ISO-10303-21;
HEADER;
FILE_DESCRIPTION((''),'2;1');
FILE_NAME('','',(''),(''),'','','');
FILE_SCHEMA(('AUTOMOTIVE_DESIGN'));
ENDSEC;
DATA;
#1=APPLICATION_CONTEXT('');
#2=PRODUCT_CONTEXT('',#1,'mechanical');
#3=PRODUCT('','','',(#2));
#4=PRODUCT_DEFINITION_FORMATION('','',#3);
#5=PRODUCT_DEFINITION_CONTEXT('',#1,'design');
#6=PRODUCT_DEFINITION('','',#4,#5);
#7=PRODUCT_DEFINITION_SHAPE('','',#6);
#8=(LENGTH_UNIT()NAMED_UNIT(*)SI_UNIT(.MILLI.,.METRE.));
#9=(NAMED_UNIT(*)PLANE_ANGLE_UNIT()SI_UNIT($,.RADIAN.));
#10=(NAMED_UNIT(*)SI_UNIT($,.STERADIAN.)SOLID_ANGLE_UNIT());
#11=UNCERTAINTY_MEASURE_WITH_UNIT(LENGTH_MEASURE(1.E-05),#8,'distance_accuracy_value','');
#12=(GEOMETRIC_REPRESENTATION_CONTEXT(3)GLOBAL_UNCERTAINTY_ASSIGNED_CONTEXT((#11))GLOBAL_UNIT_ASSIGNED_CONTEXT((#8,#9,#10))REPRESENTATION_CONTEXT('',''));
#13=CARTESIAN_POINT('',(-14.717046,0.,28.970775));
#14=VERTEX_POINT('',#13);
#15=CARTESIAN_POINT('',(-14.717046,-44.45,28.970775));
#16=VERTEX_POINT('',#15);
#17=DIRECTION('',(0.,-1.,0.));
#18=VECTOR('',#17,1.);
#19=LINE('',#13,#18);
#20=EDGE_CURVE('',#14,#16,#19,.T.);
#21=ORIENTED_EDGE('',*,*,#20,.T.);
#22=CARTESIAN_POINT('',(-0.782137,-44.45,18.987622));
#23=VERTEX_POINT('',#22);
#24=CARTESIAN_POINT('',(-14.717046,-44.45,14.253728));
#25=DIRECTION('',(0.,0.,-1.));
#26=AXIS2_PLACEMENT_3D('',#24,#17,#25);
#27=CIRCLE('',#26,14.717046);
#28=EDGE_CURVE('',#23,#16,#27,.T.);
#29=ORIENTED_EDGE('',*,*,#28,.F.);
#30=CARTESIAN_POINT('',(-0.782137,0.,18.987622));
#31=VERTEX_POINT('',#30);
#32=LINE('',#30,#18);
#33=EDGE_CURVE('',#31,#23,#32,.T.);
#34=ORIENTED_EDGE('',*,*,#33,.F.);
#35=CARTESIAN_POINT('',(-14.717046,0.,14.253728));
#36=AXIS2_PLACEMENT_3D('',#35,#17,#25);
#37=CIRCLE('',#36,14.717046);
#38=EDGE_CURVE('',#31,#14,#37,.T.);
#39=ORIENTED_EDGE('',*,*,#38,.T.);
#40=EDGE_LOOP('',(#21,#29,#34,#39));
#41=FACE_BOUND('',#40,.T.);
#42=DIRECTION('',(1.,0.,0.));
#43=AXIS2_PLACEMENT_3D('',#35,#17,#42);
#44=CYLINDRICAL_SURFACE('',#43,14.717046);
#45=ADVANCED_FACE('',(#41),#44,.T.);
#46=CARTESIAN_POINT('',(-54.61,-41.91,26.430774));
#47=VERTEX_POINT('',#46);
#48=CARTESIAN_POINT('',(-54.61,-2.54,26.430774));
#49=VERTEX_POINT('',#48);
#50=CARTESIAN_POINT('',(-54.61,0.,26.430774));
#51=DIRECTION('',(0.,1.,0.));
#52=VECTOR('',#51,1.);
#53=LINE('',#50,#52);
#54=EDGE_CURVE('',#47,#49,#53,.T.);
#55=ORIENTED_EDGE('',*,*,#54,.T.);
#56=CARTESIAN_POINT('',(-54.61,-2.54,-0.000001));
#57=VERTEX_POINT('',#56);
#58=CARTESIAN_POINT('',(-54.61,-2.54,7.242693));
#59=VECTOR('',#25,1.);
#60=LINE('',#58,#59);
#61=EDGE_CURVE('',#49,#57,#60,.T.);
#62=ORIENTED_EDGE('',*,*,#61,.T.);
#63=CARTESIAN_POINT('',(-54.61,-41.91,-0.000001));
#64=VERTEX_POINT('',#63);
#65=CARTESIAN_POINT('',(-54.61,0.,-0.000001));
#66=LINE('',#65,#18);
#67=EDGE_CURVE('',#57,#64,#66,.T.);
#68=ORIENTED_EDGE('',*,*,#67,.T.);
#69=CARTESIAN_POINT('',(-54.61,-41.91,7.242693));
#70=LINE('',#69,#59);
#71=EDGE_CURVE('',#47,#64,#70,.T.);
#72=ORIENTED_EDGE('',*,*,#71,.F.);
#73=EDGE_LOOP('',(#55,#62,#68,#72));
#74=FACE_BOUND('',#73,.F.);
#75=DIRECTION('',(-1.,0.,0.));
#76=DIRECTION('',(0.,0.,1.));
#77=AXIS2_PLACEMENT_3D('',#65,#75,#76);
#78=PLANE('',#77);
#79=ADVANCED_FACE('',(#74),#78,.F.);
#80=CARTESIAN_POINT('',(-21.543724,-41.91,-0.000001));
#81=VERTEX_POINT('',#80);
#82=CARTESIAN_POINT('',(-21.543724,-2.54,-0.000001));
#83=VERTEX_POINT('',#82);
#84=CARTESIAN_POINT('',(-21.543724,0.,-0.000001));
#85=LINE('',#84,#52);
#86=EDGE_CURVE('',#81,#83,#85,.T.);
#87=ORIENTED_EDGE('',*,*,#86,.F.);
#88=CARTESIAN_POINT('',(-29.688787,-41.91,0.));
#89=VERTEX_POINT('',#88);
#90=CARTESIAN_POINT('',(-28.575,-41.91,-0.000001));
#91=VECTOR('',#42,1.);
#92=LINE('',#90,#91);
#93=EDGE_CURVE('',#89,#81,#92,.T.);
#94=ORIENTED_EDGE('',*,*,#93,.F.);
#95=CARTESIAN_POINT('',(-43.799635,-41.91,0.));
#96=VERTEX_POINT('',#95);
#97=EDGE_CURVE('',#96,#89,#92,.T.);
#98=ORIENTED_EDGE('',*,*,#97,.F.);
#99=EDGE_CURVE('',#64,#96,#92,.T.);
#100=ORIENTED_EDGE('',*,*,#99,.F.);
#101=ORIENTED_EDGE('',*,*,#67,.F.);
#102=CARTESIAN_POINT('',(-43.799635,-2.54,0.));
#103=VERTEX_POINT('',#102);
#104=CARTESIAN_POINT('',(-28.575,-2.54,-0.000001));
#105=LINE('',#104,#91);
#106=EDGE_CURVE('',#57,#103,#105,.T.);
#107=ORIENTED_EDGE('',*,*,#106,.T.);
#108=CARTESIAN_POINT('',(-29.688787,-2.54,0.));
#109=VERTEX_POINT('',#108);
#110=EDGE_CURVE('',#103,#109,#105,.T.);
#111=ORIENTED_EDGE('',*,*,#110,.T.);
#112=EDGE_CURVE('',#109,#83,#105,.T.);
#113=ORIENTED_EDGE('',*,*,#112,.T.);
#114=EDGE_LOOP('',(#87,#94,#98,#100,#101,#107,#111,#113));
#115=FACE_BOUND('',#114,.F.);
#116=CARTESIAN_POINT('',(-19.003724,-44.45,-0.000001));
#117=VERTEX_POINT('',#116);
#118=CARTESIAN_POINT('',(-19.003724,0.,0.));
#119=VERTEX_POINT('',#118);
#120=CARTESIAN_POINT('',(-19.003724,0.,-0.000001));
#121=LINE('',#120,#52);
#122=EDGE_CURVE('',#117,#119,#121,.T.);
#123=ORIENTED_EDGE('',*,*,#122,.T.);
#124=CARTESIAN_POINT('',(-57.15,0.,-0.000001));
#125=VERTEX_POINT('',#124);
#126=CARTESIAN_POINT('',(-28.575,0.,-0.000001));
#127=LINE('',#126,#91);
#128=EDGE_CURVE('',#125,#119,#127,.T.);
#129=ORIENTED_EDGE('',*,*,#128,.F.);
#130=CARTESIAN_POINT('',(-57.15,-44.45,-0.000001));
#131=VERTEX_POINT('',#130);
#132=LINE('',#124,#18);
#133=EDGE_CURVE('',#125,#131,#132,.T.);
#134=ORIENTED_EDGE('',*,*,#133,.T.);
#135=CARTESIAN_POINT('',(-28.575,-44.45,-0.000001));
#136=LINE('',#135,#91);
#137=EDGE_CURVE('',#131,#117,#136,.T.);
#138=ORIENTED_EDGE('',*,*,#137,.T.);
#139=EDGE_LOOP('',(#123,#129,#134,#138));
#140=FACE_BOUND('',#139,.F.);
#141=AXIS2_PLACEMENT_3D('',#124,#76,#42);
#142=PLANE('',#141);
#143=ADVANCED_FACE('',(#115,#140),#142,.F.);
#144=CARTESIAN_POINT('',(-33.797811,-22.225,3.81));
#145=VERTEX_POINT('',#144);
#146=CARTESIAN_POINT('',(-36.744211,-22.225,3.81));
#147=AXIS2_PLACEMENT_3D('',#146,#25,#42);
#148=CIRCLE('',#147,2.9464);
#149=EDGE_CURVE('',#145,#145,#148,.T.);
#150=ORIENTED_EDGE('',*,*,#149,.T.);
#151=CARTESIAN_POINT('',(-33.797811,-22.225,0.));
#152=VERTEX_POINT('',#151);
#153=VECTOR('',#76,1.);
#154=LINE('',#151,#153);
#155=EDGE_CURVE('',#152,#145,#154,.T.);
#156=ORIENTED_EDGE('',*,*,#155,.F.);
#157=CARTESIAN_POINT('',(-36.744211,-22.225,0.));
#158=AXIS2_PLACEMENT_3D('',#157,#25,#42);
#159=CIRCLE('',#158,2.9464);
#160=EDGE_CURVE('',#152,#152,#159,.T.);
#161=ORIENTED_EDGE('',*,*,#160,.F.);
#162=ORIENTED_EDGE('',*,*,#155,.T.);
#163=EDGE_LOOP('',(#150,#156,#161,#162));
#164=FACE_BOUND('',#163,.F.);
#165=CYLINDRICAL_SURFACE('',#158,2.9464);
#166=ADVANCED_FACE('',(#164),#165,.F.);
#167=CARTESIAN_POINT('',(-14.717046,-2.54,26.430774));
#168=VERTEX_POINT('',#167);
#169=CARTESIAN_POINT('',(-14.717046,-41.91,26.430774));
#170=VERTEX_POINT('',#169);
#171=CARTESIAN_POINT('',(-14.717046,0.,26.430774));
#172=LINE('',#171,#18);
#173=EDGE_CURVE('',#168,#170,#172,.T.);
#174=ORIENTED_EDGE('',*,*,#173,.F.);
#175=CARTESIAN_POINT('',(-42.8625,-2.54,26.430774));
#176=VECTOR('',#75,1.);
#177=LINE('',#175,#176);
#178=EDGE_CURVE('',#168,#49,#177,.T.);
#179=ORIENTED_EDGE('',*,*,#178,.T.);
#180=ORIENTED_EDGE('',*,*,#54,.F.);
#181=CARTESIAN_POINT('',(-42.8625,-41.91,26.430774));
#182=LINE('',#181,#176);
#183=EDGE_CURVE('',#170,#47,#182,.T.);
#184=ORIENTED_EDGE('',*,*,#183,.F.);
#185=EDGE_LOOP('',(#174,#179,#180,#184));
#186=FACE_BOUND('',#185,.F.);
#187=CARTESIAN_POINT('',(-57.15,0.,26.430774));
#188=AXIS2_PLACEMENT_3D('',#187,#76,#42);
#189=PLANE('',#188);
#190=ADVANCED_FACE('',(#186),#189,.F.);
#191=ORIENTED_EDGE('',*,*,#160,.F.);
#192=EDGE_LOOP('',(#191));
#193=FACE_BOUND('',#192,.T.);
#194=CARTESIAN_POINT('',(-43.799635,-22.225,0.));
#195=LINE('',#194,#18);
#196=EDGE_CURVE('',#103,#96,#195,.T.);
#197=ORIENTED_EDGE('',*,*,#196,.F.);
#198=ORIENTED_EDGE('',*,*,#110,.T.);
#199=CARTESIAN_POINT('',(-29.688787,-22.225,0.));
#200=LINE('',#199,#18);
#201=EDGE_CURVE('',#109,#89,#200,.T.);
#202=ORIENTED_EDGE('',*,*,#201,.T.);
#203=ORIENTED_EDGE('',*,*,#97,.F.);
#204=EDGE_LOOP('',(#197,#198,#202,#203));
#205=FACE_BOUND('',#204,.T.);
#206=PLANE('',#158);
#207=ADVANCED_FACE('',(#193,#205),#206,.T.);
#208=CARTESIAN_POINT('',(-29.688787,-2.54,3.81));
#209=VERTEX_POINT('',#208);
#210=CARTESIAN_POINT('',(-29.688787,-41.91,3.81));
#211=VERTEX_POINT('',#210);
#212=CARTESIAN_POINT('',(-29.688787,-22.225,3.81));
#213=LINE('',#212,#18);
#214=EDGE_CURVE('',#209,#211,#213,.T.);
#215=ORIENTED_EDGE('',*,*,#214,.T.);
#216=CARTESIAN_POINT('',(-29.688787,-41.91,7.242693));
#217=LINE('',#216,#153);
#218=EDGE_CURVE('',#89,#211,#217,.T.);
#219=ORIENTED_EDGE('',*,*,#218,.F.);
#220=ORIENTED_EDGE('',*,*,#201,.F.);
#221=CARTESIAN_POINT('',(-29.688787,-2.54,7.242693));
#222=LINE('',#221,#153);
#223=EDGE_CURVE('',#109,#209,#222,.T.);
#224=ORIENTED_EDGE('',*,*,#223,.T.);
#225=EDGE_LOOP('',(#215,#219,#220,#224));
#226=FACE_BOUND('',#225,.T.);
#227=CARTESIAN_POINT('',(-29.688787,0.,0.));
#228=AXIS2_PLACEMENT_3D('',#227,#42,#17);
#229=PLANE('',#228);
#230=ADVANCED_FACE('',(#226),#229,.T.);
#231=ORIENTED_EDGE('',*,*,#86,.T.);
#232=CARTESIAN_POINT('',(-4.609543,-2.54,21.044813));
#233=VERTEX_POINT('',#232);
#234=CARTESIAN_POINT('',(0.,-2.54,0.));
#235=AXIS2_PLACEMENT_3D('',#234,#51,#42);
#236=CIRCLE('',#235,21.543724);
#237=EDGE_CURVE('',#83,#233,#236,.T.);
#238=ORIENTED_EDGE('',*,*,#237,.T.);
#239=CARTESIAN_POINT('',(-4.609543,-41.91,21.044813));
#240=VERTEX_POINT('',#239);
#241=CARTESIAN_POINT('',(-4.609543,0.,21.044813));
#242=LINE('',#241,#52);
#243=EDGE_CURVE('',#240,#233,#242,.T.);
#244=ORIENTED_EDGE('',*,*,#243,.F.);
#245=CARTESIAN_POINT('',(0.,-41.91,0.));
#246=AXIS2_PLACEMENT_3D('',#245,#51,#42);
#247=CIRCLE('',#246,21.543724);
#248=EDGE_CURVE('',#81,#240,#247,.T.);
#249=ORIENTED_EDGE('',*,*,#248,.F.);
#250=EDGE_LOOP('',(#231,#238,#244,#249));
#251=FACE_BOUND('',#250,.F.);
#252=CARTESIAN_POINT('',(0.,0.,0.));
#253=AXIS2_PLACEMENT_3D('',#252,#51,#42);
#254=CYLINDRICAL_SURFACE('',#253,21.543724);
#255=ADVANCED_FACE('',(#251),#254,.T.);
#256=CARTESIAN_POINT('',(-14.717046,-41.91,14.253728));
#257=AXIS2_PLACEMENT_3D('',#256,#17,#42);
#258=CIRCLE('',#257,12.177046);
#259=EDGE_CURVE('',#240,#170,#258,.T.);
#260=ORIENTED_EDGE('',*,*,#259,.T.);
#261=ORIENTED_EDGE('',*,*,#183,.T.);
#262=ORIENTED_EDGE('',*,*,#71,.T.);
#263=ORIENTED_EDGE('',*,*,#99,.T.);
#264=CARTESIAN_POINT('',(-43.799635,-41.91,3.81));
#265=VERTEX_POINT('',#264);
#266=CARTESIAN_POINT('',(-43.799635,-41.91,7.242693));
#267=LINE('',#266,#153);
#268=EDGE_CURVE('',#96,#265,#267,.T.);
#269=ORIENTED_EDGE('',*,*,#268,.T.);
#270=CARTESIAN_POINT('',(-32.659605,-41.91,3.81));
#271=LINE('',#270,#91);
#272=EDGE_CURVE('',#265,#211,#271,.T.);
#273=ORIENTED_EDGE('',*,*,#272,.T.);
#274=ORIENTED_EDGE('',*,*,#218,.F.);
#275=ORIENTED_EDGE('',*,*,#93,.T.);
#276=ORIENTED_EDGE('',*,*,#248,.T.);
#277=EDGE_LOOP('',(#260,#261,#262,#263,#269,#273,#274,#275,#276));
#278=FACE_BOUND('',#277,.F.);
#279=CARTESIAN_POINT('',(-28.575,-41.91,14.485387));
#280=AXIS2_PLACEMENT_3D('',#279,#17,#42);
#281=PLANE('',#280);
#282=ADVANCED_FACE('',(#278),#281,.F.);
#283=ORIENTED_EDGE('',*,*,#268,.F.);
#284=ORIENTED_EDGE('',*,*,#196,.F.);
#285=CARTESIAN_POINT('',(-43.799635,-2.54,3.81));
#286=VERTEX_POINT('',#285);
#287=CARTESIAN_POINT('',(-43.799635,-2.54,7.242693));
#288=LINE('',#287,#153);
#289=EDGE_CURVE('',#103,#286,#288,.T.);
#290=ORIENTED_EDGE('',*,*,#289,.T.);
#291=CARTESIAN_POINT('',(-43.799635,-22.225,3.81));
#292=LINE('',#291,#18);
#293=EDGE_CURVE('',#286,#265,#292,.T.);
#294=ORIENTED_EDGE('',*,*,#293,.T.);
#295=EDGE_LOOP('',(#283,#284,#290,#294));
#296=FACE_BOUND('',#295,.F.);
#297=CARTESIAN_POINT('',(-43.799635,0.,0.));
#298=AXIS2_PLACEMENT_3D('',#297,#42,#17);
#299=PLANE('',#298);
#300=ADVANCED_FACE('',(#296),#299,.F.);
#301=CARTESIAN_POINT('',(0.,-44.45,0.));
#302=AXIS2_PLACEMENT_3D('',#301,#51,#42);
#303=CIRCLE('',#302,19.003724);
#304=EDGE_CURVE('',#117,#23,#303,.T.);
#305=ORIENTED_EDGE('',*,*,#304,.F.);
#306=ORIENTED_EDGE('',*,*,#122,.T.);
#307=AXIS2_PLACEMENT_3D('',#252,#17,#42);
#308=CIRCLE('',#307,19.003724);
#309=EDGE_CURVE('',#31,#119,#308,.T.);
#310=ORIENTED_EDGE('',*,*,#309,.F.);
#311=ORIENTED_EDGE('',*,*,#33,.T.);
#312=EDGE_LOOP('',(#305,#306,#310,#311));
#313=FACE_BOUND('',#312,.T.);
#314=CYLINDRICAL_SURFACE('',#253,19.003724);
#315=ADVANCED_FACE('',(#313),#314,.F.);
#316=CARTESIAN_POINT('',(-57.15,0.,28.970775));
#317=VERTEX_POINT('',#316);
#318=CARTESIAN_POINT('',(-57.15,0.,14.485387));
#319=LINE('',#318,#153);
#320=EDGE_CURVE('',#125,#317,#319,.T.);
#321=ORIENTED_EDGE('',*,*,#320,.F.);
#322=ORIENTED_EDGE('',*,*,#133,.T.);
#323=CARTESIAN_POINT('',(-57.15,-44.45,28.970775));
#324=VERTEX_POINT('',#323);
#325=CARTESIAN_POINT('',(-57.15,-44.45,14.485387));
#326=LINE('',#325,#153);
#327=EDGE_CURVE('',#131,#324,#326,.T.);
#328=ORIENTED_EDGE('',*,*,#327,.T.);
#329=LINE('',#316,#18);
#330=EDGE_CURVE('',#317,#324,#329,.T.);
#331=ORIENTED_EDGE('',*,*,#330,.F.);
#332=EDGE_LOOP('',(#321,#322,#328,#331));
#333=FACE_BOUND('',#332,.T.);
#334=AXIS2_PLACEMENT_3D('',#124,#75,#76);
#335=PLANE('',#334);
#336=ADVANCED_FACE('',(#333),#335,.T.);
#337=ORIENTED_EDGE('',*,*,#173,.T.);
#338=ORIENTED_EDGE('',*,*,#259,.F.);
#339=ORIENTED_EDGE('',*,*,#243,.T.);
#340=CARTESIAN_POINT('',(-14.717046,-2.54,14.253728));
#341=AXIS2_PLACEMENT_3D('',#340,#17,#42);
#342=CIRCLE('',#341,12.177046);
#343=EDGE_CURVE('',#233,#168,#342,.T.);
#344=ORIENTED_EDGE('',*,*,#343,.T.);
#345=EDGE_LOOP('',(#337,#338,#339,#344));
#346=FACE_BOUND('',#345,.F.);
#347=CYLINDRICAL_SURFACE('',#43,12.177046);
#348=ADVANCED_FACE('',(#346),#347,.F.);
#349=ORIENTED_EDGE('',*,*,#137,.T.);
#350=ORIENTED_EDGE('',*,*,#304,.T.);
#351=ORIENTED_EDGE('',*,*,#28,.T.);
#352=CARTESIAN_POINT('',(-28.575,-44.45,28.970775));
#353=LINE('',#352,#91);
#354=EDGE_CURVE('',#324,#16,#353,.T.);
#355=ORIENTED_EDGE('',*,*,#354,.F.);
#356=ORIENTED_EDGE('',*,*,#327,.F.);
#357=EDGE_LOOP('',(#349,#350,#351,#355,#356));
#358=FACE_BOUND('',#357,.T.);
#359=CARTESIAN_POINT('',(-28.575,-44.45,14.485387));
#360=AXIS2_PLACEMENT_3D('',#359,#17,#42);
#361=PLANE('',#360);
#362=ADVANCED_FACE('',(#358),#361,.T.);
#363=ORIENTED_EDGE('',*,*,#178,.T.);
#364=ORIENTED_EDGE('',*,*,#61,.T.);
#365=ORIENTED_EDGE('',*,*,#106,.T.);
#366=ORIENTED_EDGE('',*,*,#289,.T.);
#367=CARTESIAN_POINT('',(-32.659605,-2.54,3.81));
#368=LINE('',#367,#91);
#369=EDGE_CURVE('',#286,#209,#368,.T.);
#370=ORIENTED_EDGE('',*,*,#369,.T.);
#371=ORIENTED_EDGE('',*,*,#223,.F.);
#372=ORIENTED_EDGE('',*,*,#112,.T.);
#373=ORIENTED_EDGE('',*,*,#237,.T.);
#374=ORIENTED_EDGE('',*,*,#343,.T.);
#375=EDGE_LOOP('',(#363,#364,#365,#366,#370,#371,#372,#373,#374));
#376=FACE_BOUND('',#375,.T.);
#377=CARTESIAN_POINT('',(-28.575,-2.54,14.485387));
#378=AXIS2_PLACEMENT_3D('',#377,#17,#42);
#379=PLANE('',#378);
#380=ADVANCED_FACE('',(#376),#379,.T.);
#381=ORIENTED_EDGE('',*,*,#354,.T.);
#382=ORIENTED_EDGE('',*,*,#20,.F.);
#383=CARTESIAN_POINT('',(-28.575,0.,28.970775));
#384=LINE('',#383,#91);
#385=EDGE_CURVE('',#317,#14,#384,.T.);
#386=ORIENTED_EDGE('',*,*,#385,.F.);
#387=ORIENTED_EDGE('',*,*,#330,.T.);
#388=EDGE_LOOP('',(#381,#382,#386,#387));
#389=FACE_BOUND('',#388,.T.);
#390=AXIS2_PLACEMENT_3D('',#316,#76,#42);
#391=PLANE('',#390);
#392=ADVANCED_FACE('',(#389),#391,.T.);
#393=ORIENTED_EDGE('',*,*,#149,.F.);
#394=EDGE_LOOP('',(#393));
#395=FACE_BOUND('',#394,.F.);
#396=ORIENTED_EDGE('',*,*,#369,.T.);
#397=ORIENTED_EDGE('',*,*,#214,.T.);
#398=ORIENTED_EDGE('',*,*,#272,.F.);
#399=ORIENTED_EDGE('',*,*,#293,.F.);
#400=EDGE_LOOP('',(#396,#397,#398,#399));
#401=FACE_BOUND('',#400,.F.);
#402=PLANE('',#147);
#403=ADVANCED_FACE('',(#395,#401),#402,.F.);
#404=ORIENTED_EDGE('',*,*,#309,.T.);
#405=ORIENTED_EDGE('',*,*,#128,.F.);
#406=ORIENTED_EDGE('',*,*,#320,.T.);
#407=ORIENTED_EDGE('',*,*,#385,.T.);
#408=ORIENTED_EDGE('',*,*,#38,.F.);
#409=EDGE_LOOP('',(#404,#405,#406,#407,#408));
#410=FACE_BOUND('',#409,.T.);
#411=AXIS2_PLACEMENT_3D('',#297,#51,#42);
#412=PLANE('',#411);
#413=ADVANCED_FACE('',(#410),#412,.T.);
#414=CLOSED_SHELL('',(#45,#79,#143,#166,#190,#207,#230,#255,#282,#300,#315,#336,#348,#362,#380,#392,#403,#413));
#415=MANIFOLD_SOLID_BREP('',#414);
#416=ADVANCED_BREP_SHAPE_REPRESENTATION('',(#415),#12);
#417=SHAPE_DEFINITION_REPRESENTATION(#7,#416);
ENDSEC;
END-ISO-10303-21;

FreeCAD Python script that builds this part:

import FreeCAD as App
import Part
import Sketcher
Q = App.Units.Quantity


def edges_at(feature, points):
    """Names of the edges that pass closest to the given points."""
    edges = feature.Shape.Edges
    near = lambda p: min(range(len(edges)), key=lambda i: edges[i].distToShape(Part.Vertex(*p))[0])
    return sorted({f"Edge{near(p) + 1}" for p in points})


def faces_at(feature, points):
    """Names of the faces that lie closest to the given points."""
    faces = feature.Shape.Faces
    near = lambda p: min(range(len(faces)), key=lambda i: faces[i].distToShape(Part.Vertex(*p))[0])
    return sorted({f"Face{near(p) + 1}" for p in points})


def add_polygon(sketch, points):
    """Adds a closed chain of lines whose ends are joined by coincident constraints."""
    first, n = sketch.GeometryCount, len(points)
    for a, b in zip(points, points[1:] + points[:1]):
        sketch.addGeometry(Part.LineSegment(App.Vector(*a, 0), App.Vector(*b, 0)), False)
    for i in range(n):
        sketch.addConstraint(Sketcher.Constraint("Coincident", first + i, 2, first + (i + 1) % n, 1))

doc = App.newDocument("Part")
body = doc.addObject("PartDesign::Body", "Body")

# Sketch on XZ plane
sketch1 = doc.addObject("Sketcher::SketchObject", "Sketch")
body.addObject(sketch1)
sketch1.AttachmentSupport = (doc.XZ_Plane, [""])
sketch1.MapMode = "FlatFace"
add_polygon(sketch1, [(-57.15, 28.970775), (-57.15, 0), (0, 0), (0, 28.970775)])  # lines 0-3
sketch1.addConstraint([
    Sketcher.Constraint("Vertical", 0),
    Sketcher.Constraint("Horizontal", 1),
    Sketcher.Constraint("Vertical", 2),
    Sketcher.Constraint("Horizontal", 3),
    Sketcher.Constraint("Coincident", 1, 2, -1, 1),
    Sketcher.Constraint("DistanceX", 1, 1, 1, 2, Q("2.25 in")),
    Sketcher.Constraint("DistanceY", 0, 2, 0, 1, 28.970775),
])
pad1 = doc.addObject("PartDesign::Pad", "Pad")
body.addObject(pad1)
pad1.Profile = sketch1
pad1.Length = Q("1.75 in")
doc.recompute()

fillet = doc.addObject("PartDesign::Fillet", "Fillet")
body.addObject(fillet)
fillet.Base = (pad1, edges_at(pad1, [(0, -22.225, 28.971)]))
fillet.Radius = 14.717046

# Sketch on XZ plane
sketch2 = doc.addObject("Sketcher::SketchObject", "Sketch001")
body.addObject(sketch2)
sketch2.AttachmentSupport = (doc.XZ_Plane, [""])
sketch2.MapMode = "FlatFace"
sketch2.addGeometry(Part.Circle(App.Vector(0, 0, 0), App.Vector(0, 0, 1), 19.003724), False)
sketch2.addConstraint([
    Sketcher.Constraint("Coincident", 0, 3, -1, 1),
    Sketcher.Constraint("Diameter", 0, 38.007448),
])
pocket1 = doc.addObject("PartDesign::Pocket", "Pocket")
body.addObject(pocket1)
pocket1.Profile = sketch2
pocket1.Length = Q("2.62 in")
pocket1.Reversed = True
doc.recompute()

thickness = doc.addObject("PartDesign::Thickness", "Thickness")
body.addObject(thickness)
thickness.Base = (pocket1, faces_at(pocket1, [(-38.077, -22.225, 0)]))
thickness.Value = Q("0.1 in")
thickness.Reversed = True
thickness.Join = "Arc"

# Sketch on XY plane
sketch3 = doc.addObject("Sketcher::SketchObject", "Sketch002")
body.addObject(sketch3)
sketch3.AttachmentSupport = (doc.XY_Plane, [""])
sketch3.MapMode = "FlatFace"
add_polygon(sketch3, [(-43.799635, -44.45), (-43.799635, 0), (-29.688787, 0), (-29.688787, -44.45)])  # lines 0-3
sketch3.addGeometry(Part.Circle(App.Vector(-36.744211, -22.225, 0), App.Vector(0, 0, 1), 2.9464), False)  # 4
sketch3.addConstraint([
    Sketcher.Constraint("Vertical", 0),
    Sketcher.Constraint("Horizontal", 1),
    Sketcher.Constraint("Vertical", 2),
    Sketcher.Constraint("Horizontal", 3),
    Sketcher.Constraint("PointOnObject", 0, 2, -1),
    Sketcher.Constraint("Diameter", 4, Q("0.232 in")),
    Sketcher.Constraint("DistanceY", 0, 1, 0, 2, Q("1.75 in")),
    Sketcher.Constraint("DistanceY", 4, 3, -1, 1, Q("0.875 in")),
    Sketcher.Constraint("DistanceX", 1, 1, 1, 2, 14.110848),
    Sketcher.Constraint("DistanceX", 4, 3, -1, 1, 36.744211),
    Sketcher.Constraint("DistanceX", 0, 2, -1, 1, 43.799635),
])
pad2 = doc.addObject("PartDesign::Pad", "Pad001")
body.addObject(pad2)
pad2.Profile = sketch3
pad2.Length = Q("0.15 in")

doc.recompute()
